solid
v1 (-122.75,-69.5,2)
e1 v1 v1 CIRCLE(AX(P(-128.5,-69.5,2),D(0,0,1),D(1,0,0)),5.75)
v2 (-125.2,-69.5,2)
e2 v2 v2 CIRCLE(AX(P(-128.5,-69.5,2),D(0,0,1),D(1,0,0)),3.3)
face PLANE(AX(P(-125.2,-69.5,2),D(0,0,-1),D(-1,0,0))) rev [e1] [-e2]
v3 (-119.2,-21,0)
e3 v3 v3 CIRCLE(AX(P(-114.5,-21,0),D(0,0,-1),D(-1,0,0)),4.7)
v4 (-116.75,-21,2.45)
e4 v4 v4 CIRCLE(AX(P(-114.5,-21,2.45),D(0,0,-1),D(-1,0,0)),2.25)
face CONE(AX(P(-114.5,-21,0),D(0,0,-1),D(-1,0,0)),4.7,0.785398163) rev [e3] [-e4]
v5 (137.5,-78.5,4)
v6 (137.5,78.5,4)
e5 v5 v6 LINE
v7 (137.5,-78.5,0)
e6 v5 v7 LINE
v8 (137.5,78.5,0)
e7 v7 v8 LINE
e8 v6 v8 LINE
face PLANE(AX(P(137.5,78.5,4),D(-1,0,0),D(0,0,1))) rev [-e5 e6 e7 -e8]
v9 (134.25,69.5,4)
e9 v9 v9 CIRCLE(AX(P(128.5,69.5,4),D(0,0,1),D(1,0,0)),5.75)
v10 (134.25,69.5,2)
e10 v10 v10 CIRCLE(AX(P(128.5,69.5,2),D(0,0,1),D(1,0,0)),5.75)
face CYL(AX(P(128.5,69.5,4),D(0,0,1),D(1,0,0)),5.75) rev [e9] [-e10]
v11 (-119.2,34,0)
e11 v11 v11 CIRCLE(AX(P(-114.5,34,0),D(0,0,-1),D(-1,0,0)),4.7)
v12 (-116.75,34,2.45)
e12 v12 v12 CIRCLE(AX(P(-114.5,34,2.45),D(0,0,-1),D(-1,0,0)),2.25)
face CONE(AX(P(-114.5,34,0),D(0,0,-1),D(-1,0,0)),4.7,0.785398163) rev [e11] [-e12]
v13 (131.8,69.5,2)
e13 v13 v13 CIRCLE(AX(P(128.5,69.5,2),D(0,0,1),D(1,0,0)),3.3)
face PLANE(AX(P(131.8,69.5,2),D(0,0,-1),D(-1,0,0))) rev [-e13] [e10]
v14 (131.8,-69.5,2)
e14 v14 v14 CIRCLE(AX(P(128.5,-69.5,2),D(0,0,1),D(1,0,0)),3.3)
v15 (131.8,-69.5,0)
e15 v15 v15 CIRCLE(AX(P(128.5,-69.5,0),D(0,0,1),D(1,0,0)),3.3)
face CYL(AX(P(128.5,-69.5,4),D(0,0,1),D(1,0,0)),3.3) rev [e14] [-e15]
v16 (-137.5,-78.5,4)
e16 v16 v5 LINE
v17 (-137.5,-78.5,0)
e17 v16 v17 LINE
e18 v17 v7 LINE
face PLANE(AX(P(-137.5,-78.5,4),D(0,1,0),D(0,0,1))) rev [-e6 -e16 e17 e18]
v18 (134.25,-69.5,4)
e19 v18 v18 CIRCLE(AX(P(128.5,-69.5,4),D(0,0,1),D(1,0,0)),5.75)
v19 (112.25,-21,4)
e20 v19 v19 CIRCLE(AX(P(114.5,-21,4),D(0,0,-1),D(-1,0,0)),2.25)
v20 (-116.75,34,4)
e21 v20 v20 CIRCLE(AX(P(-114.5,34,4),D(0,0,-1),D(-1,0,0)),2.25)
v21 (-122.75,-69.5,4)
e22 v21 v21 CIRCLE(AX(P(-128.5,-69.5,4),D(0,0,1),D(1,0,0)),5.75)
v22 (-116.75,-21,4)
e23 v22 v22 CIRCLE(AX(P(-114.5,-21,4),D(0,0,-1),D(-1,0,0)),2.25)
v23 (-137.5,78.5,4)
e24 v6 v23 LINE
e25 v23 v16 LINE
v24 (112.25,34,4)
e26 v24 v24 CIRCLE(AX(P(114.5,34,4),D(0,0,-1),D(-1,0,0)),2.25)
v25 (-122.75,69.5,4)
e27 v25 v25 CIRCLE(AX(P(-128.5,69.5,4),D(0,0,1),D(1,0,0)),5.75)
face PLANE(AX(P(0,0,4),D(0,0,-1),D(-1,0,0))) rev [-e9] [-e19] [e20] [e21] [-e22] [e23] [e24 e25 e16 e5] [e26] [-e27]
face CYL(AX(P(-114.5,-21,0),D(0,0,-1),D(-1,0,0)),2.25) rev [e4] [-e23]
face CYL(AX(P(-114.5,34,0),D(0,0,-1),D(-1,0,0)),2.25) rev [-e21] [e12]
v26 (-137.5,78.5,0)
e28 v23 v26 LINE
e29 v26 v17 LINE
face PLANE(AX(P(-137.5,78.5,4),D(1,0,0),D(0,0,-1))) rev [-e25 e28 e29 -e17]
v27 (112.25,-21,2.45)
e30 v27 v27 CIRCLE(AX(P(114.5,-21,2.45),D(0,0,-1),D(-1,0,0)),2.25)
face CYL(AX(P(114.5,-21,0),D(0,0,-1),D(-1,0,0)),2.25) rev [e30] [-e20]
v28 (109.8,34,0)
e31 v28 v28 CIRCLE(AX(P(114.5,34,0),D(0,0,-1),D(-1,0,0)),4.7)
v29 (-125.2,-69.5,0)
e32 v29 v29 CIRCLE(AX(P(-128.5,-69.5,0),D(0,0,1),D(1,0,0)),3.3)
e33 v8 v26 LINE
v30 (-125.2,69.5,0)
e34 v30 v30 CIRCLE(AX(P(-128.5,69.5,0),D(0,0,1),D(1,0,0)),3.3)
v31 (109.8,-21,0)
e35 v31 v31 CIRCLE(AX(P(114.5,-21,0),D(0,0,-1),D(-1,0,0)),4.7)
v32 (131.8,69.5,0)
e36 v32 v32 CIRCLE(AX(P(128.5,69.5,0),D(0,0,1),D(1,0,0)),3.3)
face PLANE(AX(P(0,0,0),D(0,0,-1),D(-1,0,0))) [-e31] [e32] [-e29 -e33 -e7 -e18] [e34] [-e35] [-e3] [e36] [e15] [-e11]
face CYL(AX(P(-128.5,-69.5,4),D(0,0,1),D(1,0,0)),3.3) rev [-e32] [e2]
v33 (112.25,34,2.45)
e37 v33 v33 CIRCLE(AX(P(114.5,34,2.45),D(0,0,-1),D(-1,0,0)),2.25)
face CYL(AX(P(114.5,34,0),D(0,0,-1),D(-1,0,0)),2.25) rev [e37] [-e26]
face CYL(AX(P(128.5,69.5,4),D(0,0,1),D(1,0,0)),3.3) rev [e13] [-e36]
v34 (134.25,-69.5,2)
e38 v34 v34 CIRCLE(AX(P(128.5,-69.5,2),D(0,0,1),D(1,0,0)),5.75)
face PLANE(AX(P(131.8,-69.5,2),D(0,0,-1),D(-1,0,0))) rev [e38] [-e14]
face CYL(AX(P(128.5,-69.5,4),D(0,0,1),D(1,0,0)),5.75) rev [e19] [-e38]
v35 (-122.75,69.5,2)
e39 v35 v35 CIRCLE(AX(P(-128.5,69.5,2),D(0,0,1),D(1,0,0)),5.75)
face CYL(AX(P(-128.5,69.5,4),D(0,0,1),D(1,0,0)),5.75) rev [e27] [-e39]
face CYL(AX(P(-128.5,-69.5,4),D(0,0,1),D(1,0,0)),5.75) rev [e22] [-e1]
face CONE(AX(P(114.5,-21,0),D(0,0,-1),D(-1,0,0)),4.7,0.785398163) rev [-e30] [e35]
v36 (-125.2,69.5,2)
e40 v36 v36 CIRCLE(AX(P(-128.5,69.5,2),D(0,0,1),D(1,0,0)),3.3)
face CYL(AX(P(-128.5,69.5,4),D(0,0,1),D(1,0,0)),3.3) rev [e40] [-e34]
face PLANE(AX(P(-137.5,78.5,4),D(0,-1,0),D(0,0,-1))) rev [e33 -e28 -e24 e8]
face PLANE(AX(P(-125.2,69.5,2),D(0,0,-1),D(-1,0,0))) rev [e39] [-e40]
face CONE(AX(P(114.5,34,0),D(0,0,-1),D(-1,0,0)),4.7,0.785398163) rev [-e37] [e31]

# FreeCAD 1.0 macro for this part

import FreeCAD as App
import Part
import Sketcher
Q = App.Units.Quantity


def add_polygon(sketch, points):
    """Adds a closed chain of lines whose ends are joined by coincident constraints."""
    first, n = sketch.GeometryCount, len(points)
    for a, b in zip(points, points[1:] + points[:1]):
        sketch.addGeometry(Part.LineSegment(App.Vector(*a, 0), App.Vector(*b, 0)), False)
    for i in range(n):
        sketch.addConstraint(Sketcher.Constraint("Coincident", first + i, 2, first + (i + 1) % n, 1))

doc = App.newDocument("Part")
body = doc.addObject("PartDesign::Body", "Body")

# Sketch on XY plane
sketch1 = body.newObject("Sketcher::SketchObject", "Sketch")
sketch1.AttachmentSupport = (doc.getObject("XY_Plane"), [""])
sketch1.MapMode = "FlatFace"
add_polygon(sketch1, [(-138, 78), (-138, -78), (138, -78), (138, 78)])  # lines 0-3
sketch1.addConstraint(Sketcher.Constraint("Vertical", 0))
sketch1.addConstraint(Sketcher.Constraint("Horizontal", 1))
sketch1.addConstraint(Sketcher.Constraint("Vertical", 2))
sketch1.addConstraint(Sketcher.Constraint("Horizontal", 3))
sketch1.addConstraint(Sketcher.Constraint("Symmetric", 0, 2, 2, 2, -1, 1))
sketch1.addConstraint(Sketcher.Constraint("DistanceX", 1, 1, 1, 2, Q("275 mm")))
sketch1.addConstraint(Sketcher.Constraint("DistanceY", 0, 2, 0, 1, Q("157 mm")))
pad1 = body.newObject("PartDesign::Pad", "Pad")
pad1.Profile = sketch1
pad1.Length = 4

# Sketch on YZ plane
sketch2 = body.newObject("Sketcher::SketchObject", "Sketch001")
sketch2.AttachmentSupport = (doc.getObject("YZ_Plane"), [""])
sketch2.MapMode = "FlatFace"
sketch2.AttachmentOffset = App.Placement(App.Vector(0, 0, -114.5), App.Rotation())
add_polygon(sketch2, [(-21, 4), (-21, 0), (-16.3, 0), (-18.8, 2.5), (-18.8, 4)])  # lines 0-4
sketch2.addGeometry(Part.LineSegment(App.Vector(-21, 0, 0), App.Vector(-21, 4, 0)), True)  # axis
sketch2.addConstraint(Sketcher.Constraint("Vertical", 0))
sketch2.addConstraint(Sketcher.Constraint("Horizontal", 1))
sketch2.addConstraint(Sketcher.Constraint("Vertical", 3))
sketch2.addConstraint(Sketcher.Constraint("Horizontal", 4))
sketch2.addConstraint(Sketcher.Constraint("Vertical", 5))
sketch2.addConstraint(Sketcher.Constraint("Coincident", 5, 1, 0, 2))
sketch2.addConstraint(Sketcher.Constraint("PointOnObject", 0, 2, -1))
sketch2.addConstraint(Sketcher.Constraint("Horizontal", 3, 2, 5, 2))
sketch2.addConstraint(Sketcher.Constraint("DistanceY", 0, 2, 0, 1, Q("4 mm")))
sketch2.addConstraint(Sketcher.Constraint("Angle", 2, Q("135 deg")))
sketch2.addConstraint(Sketcher.Constraint("DistanceX", 1, 1, 1, 2, Q("4.7 mm")))
sketch2.addConstraint(Sketcher.Constraint("DistanceX", 0, 2, -1, 1, Q("21 mm")))
sketch2.addConstraint(Sketcher.Constraint("DistanceX", 4, 2, 4, 1, Q("2.25 mm")))
groove = body.newObject("PartDesign::Groove", "Groove")
groove.Profile = sketch2
groove.ReferenceAxis = (sketch2, ["Axis0"])
groove.Angle = 360
doc.recompute()

datumline = body.newObject("PartDesign::Line", "DatumLine")
datumline.Placement = App.Placement(App.Vector(0, 0, 0), App.Rotation(App.Vector(0, 0, 1), App.Vector(0.972348746, 0.233533542, 0)))
linearpattern = body.newObject("PartDesign::LinearPattern", "LinearPattern")
linearpattern.Originals = [groove]
linearpattern.Direction = (datumline, [""])
linearpattern.Mode = "offset"
linearpattern.Offset = 235.512208
linearpattern.Occurrences = 2
body.Tip = linearpattern
doc.recompute()

linearpattern2 = body.newObject("PartDesign::LinearPattern", "LinearPattern001")
linearpattern2.Originals = [groove]
linearpattern2.Direction = (doc.getObject("X_Axis"), [""])
linearpattern2.Mode = "offset"
linearpattern2.Offset = 229
linearpattern2.Occurrences = 2
body.Tip = linearpattern2
doc.recompute()

linearpattern3 = body.newObject("PartDesign::LinearPattern", "LinearPattern002")
linearpattern3.Originals = [groove]
linearpattern3.Direction = (doc.getObject("Y_Axis"), [""])
linearpattern3.Mode = "offset"
linearpattern3.Offset = 55
linearpattern3.Occurrences = 2
body.Tip = linearpattern3

# Sketch on XY plane
sketch3 = body.newObject("Sketcher::SketchObject", "Sketch002")
sketch3.AttachmentSupport = (doc.getObject("XY_Plane"), [""])
sketch3.MapMode = "FlatFace"
sketch3.AttachmentOffset = App.Placement(App.Vector(0, 0, 4), App.Rotation())
sketch3.addGeometry(Part.Circle(App.Vector(128.5, -69.5, 0), App.Vector(0, 0, 1), 3.3), False)
sketch3.addGeometry(Part.Circle(App.Vector(-128.5, -69.5, 0), App.Vector(0, 0, 1), 3.3), False)
sketch3.addGeometry(Part.Circle(App.Vector(-128.5, 69.5, 0), App.Vector(0, 0, 1), 3.3), False)
sketch3.addGeometry(Part.Circle(App.Vector(128.5, 69.5, 0), App.Vector(0, 0, 1), 3.3), False)
sketch3.addConstraint(Sketcher.Constraint("Equal", 0, 1))
sketch3.addConstraint(Sketcher.Constraint("Equal", 1, 2))
sketch3.addConstraint(Sketcher.Constraint("Equal", 2, 3))
sketch3.addConstraint(Sketcher.Constraint("Symmetric", 0, 3, 2, 3, -1, 1))
sketch3.addConstraint(Sketcher.Constraint("Symmetric", 1, 3, 3, 3, -1, 1))
sketch3.addConstraint(Sketcher.Constraint("Symmetric", 0, 3, 1, 3, -2))
sketch3.addConstraint(Sketcher.Constraint("Diameter", 0, Q("6.6 mm")))
sketch3.addConstraint(Sketcher.Constraint("DistanceX", 1, 3, 0, 3, Q("257 mm")))
sketch3.addConstraint(Sketcher.Constraint("DistanceY", 1, 3, 2, 3, Q("139 mm")))
doc.recompute()
hole = body.newObject("PartDesign::Hole", "Hole")
hole.Profile = sketch3
hole.ThreadType = "None"
hole.Diameter = 6.6
hole.DepthType = "ThroughAll"
hole.HoleCutType = "Counterbore"
hole.HoleCutDiameter = 11.5
hole.HoleCutDepth = 2

doc.recompute()
